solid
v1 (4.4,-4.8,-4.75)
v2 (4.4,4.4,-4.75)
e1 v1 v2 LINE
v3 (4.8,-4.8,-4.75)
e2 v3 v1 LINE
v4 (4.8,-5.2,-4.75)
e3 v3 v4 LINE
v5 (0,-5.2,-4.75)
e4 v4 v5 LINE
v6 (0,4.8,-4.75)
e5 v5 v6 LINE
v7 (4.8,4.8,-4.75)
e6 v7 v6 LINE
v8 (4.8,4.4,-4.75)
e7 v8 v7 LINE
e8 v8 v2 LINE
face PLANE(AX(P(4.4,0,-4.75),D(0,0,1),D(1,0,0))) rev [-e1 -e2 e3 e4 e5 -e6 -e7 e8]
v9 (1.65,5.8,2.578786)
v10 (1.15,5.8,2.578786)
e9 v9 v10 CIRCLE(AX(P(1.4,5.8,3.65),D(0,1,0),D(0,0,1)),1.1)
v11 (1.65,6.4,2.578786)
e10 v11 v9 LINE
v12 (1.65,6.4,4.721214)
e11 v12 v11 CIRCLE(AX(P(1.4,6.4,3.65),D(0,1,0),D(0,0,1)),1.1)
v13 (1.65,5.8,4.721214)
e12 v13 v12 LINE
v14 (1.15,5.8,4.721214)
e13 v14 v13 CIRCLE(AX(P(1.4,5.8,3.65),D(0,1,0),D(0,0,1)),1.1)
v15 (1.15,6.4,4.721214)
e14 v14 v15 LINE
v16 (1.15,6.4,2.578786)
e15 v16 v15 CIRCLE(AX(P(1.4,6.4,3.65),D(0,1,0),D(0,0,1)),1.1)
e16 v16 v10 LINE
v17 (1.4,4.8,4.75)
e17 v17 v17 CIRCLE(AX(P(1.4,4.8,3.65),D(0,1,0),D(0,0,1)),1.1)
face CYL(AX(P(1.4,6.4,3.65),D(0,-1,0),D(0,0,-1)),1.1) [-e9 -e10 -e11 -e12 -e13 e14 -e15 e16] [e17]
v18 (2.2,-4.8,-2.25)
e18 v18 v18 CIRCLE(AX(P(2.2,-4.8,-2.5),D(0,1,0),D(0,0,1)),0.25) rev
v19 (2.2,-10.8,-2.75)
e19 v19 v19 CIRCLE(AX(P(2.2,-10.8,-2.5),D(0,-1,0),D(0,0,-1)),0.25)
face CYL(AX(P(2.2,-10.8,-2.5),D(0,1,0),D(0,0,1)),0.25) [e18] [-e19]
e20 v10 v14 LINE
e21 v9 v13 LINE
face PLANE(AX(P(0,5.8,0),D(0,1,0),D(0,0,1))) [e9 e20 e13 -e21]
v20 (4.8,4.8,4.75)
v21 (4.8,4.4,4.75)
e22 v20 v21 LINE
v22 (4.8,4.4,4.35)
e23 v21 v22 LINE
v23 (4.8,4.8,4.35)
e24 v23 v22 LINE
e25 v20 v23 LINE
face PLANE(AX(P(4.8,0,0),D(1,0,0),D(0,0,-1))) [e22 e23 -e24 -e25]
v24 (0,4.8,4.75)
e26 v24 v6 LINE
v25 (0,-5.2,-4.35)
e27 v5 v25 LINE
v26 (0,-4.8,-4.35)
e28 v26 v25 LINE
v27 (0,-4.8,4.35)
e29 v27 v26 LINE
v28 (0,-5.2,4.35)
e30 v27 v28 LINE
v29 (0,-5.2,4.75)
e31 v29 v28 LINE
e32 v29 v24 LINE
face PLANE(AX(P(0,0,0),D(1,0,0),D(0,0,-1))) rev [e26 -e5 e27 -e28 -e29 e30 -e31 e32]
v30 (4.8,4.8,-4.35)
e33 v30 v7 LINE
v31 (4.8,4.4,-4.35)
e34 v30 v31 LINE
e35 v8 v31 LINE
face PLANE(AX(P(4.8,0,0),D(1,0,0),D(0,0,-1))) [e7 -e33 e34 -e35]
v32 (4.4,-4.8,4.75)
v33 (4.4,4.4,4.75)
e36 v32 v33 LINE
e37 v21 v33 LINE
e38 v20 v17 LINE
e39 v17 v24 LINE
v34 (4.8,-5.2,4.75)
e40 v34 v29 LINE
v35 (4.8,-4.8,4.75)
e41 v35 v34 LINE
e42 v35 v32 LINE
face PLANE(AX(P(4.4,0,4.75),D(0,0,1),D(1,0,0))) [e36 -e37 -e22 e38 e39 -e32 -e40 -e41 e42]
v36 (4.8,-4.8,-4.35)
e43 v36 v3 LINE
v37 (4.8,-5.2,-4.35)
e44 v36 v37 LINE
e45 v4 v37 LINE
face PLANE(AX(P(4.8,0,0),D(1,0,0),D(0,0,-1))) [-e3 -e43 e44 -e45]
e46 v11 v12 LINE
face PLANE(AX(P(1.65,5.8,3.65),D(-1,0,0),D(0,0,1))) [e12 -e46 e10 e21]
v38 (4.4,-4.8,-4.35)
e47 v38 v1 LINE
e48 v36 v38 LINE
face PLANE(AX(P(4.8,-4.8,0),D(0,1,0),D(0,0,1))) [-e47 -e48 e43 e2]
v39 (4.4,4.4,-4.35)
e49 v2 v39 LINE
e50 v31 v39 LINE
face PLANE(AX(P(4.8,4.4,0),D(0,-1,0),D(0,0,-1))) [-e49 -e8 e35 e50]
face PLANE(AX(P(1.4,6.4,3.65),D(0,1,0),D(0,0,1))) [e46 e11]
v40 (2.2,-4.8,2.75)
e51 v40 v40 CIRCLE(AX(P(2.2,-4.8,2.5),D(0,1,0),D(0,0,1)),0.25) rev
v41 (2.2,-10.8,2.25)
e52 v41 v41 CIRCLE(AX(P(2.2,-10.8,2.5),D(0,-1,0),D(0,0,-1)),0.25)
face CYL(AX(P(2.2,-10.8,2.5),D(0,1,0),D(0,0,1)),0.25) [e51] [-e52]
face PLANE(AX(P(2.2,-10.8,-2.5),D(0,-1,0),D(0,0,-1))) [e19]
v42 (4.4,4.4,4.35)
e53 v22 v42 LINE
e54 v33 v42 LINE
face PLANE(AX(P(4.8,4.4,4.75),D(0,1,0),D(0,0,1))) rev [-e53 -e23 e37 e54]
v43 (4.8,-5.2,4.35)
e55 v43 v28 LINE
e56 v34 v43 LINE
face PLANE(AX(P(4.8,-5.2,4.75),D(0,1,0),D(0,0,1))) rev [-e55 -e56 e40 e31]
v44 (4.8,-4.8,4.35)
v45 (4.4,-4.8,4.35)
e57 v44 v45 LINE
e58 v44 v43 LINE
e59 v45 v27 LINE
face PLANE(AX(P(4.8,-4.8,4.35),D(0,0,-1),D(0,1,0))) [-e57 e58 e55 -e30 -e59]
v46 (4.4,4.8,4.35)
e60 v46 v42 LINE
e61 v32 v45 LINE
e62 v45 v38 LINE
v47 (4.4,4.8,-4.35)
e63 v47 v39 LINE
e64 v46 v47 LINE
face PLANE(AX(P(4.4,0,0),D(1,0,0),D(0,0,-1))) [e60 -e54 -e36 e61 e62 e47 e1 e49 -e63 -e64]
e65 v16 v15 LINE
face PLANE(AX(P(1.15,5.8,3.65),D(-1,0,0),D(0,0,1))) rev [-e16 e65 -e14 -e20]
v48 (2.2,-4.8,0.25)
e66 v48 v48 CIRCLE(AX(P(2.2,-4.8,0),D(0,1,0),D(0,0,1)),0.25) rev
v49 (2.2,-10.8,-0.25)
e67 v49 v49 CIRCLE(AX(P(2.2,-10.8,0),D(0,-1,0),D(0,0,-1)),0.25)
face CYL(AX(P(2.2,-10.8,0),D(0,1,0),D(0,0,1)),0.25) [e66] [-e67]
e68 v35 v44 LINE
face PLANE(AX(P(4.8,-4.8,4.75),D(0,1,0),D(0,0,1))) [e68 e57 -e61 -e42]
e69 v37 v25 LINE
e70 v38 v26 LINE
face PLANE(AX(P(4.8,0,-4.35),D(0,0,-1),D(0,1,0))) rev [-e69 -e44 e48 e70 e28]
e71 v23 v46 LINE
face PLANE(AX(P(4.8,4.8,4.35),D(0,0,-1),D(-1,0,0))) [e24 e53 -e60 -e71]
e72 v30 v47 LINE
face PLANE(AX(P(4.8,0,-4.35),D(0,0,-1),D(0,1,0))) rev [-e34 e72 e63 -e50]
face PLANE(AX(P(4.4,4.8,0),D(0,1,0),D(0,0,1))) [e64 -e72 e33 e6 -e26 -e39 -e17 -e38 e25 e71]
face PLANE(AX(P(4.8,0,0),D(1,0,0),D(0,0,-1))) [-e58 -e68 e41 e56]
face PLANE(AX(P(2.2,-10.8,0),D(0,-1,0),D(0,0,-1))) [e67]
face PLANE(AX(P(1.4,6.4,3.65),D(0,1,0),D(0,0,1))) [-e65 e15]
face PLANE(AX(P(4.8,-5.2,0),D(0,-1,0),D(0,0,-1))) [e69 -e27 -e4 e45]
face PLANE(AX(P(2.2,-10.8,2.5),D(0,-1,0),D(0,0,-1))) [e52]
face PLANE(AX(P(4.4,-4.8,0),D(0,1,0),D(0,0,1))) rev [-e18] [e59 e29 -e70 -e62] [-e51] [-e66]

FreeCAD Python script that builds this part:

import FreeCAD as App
import Part
import Sketcher


def add_polygon(sketch, points):
    """Adds a closed chain of lines whose ends are joined by coincident constraints."""
    first, n = sketch.GeometryCount, len(points)
    for a, b in zip(points, points[1:] + points[:1]):
        sketch.addGeometry(Part.LineSegment(App.Vector(*a, 0), App.Vector(*b, 0)), False)
    for i in range(n):
        sketch.addConstraint(Sketcher.Constraint("Coincident", first + i, 2, first + (i + 1) % n, 1))

doc = App.newDocument("Part")
body = doc.addObject("PartDesign::Body", "Body")

sketch1 = body.newObject("Sketcher::SketchObject", "Sketch")
sketch1.AttachmentSupport = (doc.getObject("YZ_Plane"), [""])
sketch1.MapMode = "FlatFace"
add_polygon(sketch1, [(4.4, 4.75), (-4.8, 4.75), (-4.8, -4.75), (4.4, -4.75), (4.4, -4.35), (4.8, -4.35), (4.8, 4.35), (4.4, 4.35)])
sketch1.addConstraint(Sketcher.Constraint("Horizontal", 0))
sketch1.addConstraint(Sketcher.Constraint("Vertical", 1))
sketch1.addConstraint(Sketcher.Constraint("Horizontal", 2))
sketch1.addConstraint(Sketcher.Constraint("Vertical", 3))
sketch1.addConstraint(Sketcher.Constraint("Horizontal", 4))
sketch1.addConstraint(Sketcher.Constraint("Vertical", 5))
sketch1.addConstraint(Sketcher.Constraint("Horizontal", 6))
sketch1.addConstraint(Sketcher.Constraint("Vertical", 7))
sketch1.addConstraint(Sketcher.Constraint("Symmetric", 3, 2, 6, 2, -1))
sketch1.addConstraint(Sketcher.Constraint("Equal", 6, 3))
sketch1.addConstraint(Sketcher.Constraint("Equal", 3, 7))
sketch1.addConstraint(Sketcher.Constraint("DistanceX", 0, 2, 0, 1, 9.2))
sketch1.addConstraint(Sketcher.Constraint("DistanceX", 4, 1, 4, 2, 0.4))
sketch1.addConstraint(Sketcher.Constraint("DistanceY", 1, 2, 1, 1, 9.5))
sketch1.addConstraint(Sketcher.Constraint("DistanceX", 0, 2, -1, 1, 4.8))
pad1 = body.newObject("PartDesign::Pad", "Pad")
pad1.Profile = sketch1
pad1.Length = 4.4

sketch2 = body.newObject("Sketcher::SketchObject", "Sketch001")
sketch2.AttachmentSupport = (doc.getObject("YZ_Plane"), [""])
sketch2.MapMode = "FlatFace"
add_polygon(sketch2, [(4.8, -4.35), (4.4, -4.35), (4.4, -4.75), (4.8, -4.75)])
add_polygon(sketch2, [(-4.8, -4.35), (-5.2, -4.35), (-5.2, -4.75), (-4.8, -4.75)])
add_polygon(sketch2, [(4.8, 4.75), (4.4, 4.75), (4.4, 4.35), (4.8, 4.35)])
add_polygon(sketch2, [(-4.8, 4.75), (-5.2, 4.75), (-5.2, 4.35), (-4.8, 4.35)])
sketch2.addConstraint(Sketcher.Constraint("Horizontal", 0))
sketch2.addConstraint(Sketcher.Constraint("Vertical", 1))
sketch2.addConstraint(Sketcher.Constraint("Horizontal", 2))
sketch2.addConstraint(Sketcher.Constraint("Vertical", 3))
sketch2.addConstraint(Sketcher.Constraint("Horizontal", 4))
sketch2.addConstraint(Sketcher.Constraint("Vertical", 5))
sketch2.addConstraint(Sketcher.Constraint("Horizontal", 6))
sketch2.addConstraint(Sketcher.Constraint("Vertical", 7))
sketch2.addConstraint(Sketcher.Constraint("Horizontal", 8))
sketch2.addConstraint(Sketcher.Constraint("Vertical", 9))
sketch2.addConstraint(Sketcher.Constraint("Horizontal", 10))
sketch2.addConstraint(Sketcher.Constraint("Vertical", 11))
sketch2.addConstraint(Sketcher.Constraint("Horizontal", 12))
sketch2.addConstraint(Sketcher.Constraint("Vertical", 13))
sketch2.addConstraint(Sketcher.Constraint("Horizontal", 14))
sketch2.addConstraint(Sketcher.Constraint("Vertical", 15))
sketch2.addConstraint(Sketcher.Constraint("Symmetric", 7, 2, 10, 2, -1, 1))
sketch2.addConstraint(Sketcher.Constraint("Symmetric", 3, 2, 14, 2, -1, 1))
sketch2.addConstraint(Sketcher.Constraint("Symmetric", 2, 2, 6, 2, -2))
sketch2.addConstraint(Sketcher.Constraint("Symmetric", 1, 2, 8, 2, -1))
sketch2.addConstraint(Sketcher.Constraint("Symmetric", 5, 2, 12, 2, -1))
sketch2.addConstraint(Sketcher.Constraint("Horizontal", 3, 2, 4, 2))
sketch2.addConstraint(Sketcher.Constraint("Equal", 2, 4))
sketch2.addConstraint(Sketcher.Constraint("Equal", 14, 1))
sketch2.addConstraint(Sketcher.Constraint("DistanceX", 0, 2, 0, 1, 0.4))
sketch2.addConstraint(Sketcher.Constraint("DistanceX", 4, 2, 3, 2, 10.0))
sketch2.addConstraint(Sketcher.Constraint("DistanceY", 0, 2, 8, 2, 9.1))
pad2 = body.newObject("PartDesign::Pad", "Pad001")
pad2.Profile = sketch2
pad2.Length = 4.8

sketch3 = body.newObject("Sketcher::SketchObject", "Sketch002")
sketch3.AttachmentSupport = (doc.getObject("XZ_Plane"), [""])
sketch3.MapMode = "FlatFace"
sketch3.AttachmentOffset = App.Placement(App.Vector(0, 0, -4.8), App.Rotation())
sketch3.addGeometry(Part.Circle(App.Vector(1.4, 3.65, 0), App.Vector(0, 0, 1), 1.1), False)
sketch3.addConstraint(Sketcher.Constraint("Diameter", 0, 2.2))
sketch3.addConstraint(Sketcher.Constraint("DistanceX", -1, 1, 0, 3, 1.4))
sketch3.addConstraint(Sketcher.Constraint("DistanceY", -1, 1, 0, 3, 3.65))
pad3 = body.newObject("PartDesign::Pad", "Pad002")
pad3.Profile = sketch3
pad3.Length = 1.6
pad3.Reversed = True

sketch4 = body.newObject("Sketcher::SketchObject", "Sketch003")
sketch4.AttachmentSupport = (doc.getObject("XZ_Plane"), [""])
sketch4.MapMode = "FlatFace"
sketch4.AttachmentOffset = App.Placement(App.Vector(0, 0, -6.4), App.Rotation())
add_polygon(sketch4, [(1.15, 2.55), (1.15, 4.75), (1.65, 4.75), (1.65, 2.55)])
sketch4.addConstraint(Sketcher.Constraint("Vertical", 0))
sketch4.addConstraint(Sketcher.Constraint("Horizontal", 1))
sketch4.addConstraint(Sketcher.Constraint("Vertical", 2))
sketch4.addConstraint(Sketcher.Constraint("Horizontal", 3))
sketch4.addConstraint(Sketcher.Constraint("DistanceX", 1, 1, 1, 2, 0.5))
sketch4.addConstraint(Sketcher.Constraint("DistanceY", 0, 1, 0, 2, 2.2))
sketch4.addConstraint(Sketcher.Constraint("DistanceX", -1, 1, 0, 2, 1.15))
sketch4.addConstraint(Sketcher.Constraint("DistanceY", -1, 1, 0, 2, 4.75))
pocket1 = body.newObject("PartDesign::Pocket", "Pocket")
pocket1.Profile = sketch4
pocket1.Length = 0.6
pocket1.Reversed = True

sketch5 = body.newObject("Sketcher::SketchObject", "Sketch004")
sketch5.AttachmentSupport = (doc.getObject("XZ_Plane"), [""])
sketch5.MapMode = "FlatFace"
sketch5.AttachmentOffset = App.Placement(App.Vector(0, 0, 4.8), App.Rotation())
sketch5.addGeometry(Part.Circle(App.Vector(2.2, 0, 0), App.Vector(0, 0, 1), 0.25), False)
sketch5.addGeometry(Part.Circle(App.Vector(2.2, 2.5, 0), App.Vector(0, 0, 1), 0.25), False)
sketch5.addGeometry(Part.Circle(App.Vector(2.2, -2.5, 0), App.Vector(0, 0, 1), 0.25), False)
sketch5.addConstraint(Sketcher.Constraint("Equal", 0, 1))
sketch5.addConstraint(Sketcher.Constraint("Equal", 1, 2))
sketch5.addConstraint(Sketcher.Constraint("Symmetric", 1, 3, 2, 3, -1))
sketch5.addConstraint(Sketcher.Constraint("PointOnObject", 0, 3, -1))
sketch5.addConstraint(Sketcher.Constraint("Vertical", 0, 3, 1, 3))
sketch5.addConstraint(Sketcher.Constraint("Diameter", 0, 0.5))
sketch5.addConstraint(Sketcher.Constraint("DistanceY", 2, 3, 1, 3, 5.0))
sketch5.addConstraint(Sketcher.Constraint("DistanceX", -1, 1, 0, 3, 2.2))
pad4 = body.newObject("PartDesign::Pad", "Pad003")
pad4.Profile = sketch5
pad4.Length = 6

doc.recompute()
